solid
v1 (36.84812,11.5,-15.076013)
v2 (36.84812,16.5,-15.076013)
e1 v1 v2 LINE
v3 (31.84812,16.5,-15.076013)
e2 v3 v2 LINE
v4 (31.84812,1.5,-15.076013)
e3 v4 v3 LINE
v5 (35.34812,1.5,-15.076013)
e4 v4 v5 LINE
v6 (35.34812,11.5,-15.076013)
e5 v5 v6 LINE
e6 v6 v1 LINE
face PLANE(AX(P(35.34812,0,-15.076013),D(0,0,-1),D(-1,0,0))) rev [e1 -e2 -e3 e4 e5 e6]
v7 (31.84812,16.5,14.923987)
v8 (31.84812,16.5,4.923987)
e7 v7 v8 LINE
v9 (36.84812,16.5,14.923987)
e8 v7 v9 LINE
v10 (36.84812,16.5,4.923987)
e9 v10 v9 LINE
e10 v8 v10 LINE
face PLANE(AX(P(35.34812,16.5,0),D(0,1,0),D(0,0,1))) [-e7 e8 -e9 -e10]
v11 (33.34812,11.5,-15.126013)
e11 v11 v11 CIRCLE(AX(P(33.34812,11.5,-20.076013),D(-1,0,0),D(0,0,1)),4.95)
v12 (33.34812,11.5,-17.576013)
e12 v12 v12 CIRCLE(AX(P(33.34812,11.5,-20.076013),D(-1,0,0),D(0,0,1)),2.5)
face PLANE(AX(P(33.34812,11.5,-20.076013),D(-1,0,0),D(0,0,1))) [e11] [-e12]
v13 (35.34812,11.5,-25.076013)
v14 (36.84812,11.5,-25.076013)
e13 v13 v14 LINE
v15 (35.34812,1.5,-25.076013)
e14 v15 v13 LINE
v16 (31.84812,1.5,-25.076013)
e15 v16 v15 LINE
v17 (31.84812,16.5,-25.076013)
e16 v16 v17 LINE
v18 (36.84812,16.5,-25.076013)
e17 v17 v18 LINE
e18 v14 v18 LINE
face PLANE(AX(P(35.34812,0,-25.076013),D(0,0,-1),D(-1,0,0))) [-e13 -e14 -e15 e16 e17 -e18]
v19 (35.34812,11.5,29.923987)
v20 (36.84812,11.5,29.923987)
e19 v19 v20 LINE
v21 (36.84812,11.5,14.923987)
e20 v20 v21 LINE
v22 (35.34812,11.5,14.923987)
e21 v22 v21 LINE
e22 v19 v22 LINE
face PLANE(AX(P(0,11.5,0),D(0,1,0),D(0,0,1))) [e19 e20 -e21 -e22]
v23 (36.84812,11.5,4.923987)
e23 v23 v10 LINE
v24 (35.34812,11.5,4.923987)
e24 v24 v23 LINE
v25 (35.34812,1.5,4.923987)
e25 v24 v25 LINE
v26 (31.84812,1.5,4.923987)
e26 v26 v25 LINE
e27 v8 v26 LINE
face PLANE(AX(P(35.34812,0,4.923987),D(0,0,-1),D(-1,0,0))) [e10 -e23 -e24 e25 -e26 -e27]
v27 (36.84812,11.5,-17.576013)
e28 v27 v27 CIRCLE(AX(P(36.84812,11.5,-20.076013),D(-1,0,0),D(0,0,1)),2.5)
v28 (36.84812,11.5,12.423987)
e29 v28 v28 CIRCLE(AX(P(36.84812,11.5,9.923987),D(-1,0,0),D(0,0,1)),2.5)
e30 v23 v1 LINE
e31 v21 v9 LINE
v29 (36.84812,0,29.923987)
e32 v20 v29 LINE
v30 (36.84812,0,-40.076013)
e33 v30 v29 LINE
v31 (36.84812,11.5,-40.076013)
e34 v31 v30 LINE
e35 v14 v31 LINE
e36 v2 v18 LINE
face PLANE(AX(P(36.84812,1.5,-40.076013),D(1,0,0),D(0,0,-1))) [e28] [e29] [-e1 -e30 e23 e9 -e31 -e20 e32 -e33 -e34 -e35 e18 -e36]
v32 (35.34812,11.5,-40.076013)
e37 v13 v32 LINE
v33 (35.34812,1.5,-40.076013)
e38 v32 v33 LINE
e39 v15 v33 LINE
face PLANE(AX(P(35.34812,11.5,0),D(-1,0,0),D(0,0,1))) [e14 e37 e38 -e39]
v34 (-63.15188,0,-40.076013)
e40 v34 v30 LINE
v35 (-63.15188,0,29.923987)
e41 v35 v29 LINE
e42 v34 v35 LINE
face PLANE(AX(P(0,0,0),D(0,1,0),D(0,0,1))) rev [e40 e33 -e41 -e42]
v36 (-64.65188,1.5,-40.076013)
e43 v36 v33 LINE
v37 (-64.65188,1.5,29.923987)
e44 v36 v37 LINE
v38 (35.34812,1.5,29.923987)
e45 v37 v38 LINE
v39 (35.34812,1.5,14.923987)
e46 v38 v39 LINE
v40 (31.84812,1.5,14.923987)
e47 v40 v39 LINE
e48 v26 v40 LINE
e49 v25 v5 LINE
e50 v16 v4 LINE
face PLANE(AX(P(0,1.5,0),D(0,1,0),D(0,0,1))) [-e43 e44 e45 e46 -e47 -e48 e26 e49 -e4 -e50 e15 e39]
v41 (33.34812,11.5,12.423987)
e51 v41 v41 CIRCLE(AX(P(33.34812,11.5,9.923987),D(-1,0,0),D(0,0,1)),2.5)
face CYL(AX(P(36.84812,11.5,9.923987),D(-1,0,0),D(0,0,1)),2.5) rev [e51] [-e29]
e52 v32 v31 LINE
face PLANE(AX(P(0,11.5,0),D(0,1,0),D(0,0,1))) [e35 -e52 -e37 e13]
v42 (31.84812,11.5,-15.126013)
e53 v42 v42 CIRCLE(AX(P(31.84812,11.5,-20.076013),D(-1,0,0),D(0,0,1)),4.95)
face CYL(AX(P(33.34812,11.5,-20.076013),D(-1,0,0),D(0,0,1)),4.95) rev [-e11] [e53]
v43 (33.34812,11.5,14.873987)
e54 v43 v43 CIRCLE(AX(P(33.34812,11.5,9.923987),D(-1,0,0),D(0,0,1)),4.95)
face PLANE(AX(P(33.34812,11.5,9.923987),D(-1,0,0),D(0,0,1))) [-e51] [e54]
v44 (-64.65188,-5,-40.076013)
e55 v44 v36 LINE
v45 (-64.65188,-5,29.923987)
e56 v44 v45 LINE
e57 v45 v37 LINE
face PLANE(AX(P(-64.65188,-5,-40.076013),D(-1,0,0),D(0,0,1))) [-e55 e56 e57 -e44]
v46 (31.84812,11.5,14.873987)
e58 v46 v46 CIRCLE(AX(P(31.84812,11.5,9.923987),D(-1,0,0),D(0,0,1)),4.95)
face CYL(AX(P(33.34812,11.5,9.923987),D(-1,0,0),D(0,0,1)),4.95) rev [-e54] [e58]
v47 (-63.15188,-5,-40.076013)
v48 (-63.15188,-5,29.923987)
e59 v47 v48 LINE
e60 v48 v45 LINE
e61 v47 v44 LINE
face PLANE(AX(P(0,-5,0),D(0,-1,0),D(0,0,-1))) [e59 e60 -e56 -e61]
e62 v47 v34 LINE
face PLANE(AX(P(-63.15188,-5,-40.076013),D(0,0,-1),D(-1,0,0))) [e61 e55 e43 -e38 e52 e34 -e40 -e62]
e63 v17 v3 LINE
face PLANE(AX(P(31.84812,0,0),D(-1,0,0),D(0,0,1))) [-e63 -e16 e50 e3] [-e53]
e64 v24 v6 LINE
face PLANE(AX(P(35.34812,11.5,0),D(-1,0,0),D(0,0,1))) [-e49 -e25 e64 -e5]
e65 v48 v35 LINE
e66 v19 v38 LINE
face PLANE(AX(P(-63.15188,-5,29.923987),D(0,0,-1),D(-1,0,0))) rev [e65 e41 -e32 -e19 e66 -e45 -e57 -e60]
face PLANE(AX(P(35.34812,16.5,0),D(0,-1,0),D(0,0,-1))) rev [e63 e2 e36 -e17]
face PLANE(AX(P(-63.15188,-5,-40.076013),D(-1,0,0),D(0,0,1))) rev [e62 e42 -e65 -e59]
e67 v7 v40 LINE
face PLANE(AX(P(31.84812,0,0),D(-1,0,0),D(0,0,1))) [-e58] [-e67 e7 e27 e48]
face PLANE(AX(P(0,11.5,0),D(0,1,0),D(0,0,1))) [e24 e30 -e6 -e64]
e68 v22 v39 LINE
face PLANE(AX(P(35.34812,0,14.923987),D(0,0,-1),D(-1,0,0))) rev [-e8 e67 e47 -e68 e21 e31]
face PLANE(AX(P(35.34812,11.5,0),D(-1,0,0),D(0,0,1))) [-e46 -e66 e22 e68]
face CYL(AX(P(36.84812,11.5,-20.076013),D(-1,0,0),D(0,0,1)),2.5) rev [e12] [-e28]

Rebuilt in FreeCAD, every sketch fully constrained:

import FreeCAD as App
import Part
import Sketcher

V = App.Vector

doc = App.newDocument("Part")
body = doc.addObject("PartDesign::Body", "Body")

# Sketch on XZ plane
sketch1 = body.newObject("Sketcher::SketchObject", "Sketch")
sketch1.AttachmentSupport = (doc.getObject("XZ_Plane"), [""])
sketch1.MapMode = "FlatFace"
sketch1.addGeometry(Part.LineSegment(V(-64.7, -40.1, 0), V(-64.7, 29.9, 0)), False)
sketch1.addGeometry(Part.LineSegment(V(-64.7, 29.9, 0), V(-63.2, 29.9, 0)), False)
sketch1.addGeometry(Part.LineSegment(V(-63.2, 29.9, 0), V(-63.2, -40.1, 0)), False)
sketch1.addGeometry(Part.LineSegment(V(-63.2, -40.1, 0), V(-64.7, -40.1, 0)), False)
sketch1.addConstraint(Sketcher.Constraint("Coincident", 0, 2, 1, 1))
sketch1.addConstraint(Sketcher.Constraint("Coincident", 1, 2, 2, 1))
sketch1.addConstraint(Sketcher.Constraint("Coincident", 2, 2, 3, 1))
sketch1.addConstraint(Sketcher.Constraint("Coincident", 3, 2, 0, 1))
sketch1.addConstraint(Sketcher.Constraint("Vertical", 0))
sketch1.addConstraint(Sketcher.Constraint("Horizontal", 1))
sketch1.addConstraint(Sketcher.Constraint("Vertical", 2))
sketch1.addConstraint(Sketcher.Constraint("Horizontal", 3))
sketch1.addConstraint(Sketcher.Constraint("DistanceY", 0, 1, 0, 2, 70.0))
sketch1.addConstraint(Sketcher.Constraint("DistanceX", 1, 1, 1, 2, 1.5))
sketch1.addConstraint(Sketcher.Constraint("DistanceX", 0, 2, -1, 1, 64.65188))
sketch1.addConstraint(Sketcher.Constraint("DistanceY", -1, 1, 0, 2, 29.923987))
pad1 = body.newObject("PartDesign::Pad", "Pad")
pad1.Profile = sketch1
pad1.Length = 5

# Sketch on XZ plane
sketch2 = body.newObject("Sketcher::SketchObject", "Sketch001")
sketch2.AttachmentSupport = (doc.getObject("XZ_Plane"), [""])
sketch2.MapMode = "FlatFace"
sketch2.addGeometry(Part.LineSegment(V(-65, -40, 0), V(-65, 30, 0)), False)
sketch2.addGeometry(Part.LineSegment(V(-65, 30, 0), V(37, 30, 0)), False)
sketch2.addGeometry(Part.LineSegment(V(37, 30, 0), V(37, -40, 0)), False)
sketch2.addGeometry(Part.LineSegment(V(37, -40, 0), V(-65, -40, 0)), False)
sketch2.addConstraint(Sketcher.Constraint("Coincident", 0, 2, 1, 1))
sketch2.addConstraint(Sketcher.Constraint("Coincident", 1, 2, 2, 1))
sketch2.addConstraint(Sketcher.Constraint("Coincident", 2, 2, 3, 1))
sketch2.addConstraint(Sketcher.Constraint("Coincident", 3, 2, 0, 1))
sketch2.addConstraint(Sketcher.Constraint("Vertical", 0))
sketch2.addConstraint(Sketcher.Constraint("Horizontal", 1))
sketch2.addConstraint(Sketcher.Constraint("Vertical", 2))
sketch2.addConstraint(Sketcher.Constraint("Horizontal", 3))
sketch2.addConstraint(Sketcher.Constraint("DistanceY", 0, 1, 0, 2, 70.0))
sketch2.addConstraint(Sketcher.Constraint("DistanceX", 1, 1, 1, 2, 101.5))
sketch2.addConstraint(Sketcher.Constraint("DistanceX", 0, 2, -1, 1, 64.65188))
sketch2.addConstraint(Sketcher.Constraint("DistanceY", -1, 1, 0, 2, 29.923987))
pad2 = body.newObject("PartDesign::Pad", "Pad001")
pad2.Profile = sketch2
pad2.Length = 1.5
pad2.Reversed = True

# Sketch on XZ plane
sketch3 = body.newObject("Sketcher::SketchObject", "Sketch002")
sketch3.AttachmentSupport = (doc.getObject("XZ_Plane"), [""])
sketch3.MapMode = "FlatFace"
sketch3.AttachmentOffset = App.Placement(V(0, 0, -1.5), App.Rotation())
sketch3.addGeometry(Part.LineSegment(V(35.3, -40.1, 0), V(35.3, 29.9, 0)), False)
sketch3.addGeometry(Part.LineSegment(V(35.3, 29.9, 0), V(36.8, 29.9, 0)), False)
sketch3.addGeometry(Part.LineSegment(V(36.8, 29.9, 0), V(36.8, -40.1, 0)), False)
sketch3.addGeometry(Part.LineSegment(V(36.8, -40.1, 0), V(35.3, -40.1, 0)), False)
sketch3.addConstraint(Sketcher.Constraint("Coincident", 0, 2, 1, 1))
sketch3.addConstraint(Sketcher.Constraint("Coincident", 1, 2, 2, 1))
sketch3.addConstraint(Sketcher.Constraint("Coincident", 2, 2, 3, 1))
sketch3.addConstraint(Sketcher.Constraint("Coincident", 3, 2, 0, 1))
sketch3.addConstraint(Sketcher.Constraint("Vertical", 0))
sketch3.addConstraint(Sketcher.Constraint("Horizontal", 1))
sketch3.addConstraint(Sketcher.Constraint("Vertical", 2))
sketch3.addConstraint(Sketcher.Constraint("Horizontal", 3))
sketch3.addConstraint(Sketcher.Constraint("DistanceY", 0, 1, 0, 2, 70.0))
sketch3.addConstraint(Sketcher.Constraint("DistanceX", 1, 1, 1, 2, 1.5))
sketch3.addConstraint(Sketcher.Constraint("DistanceX", -1, 1, 0, 2, 35.34812))
sketch3.addConstraint(Sketcher.Constraint("DistanceY", -1, 1, 0, 2, 29.923987))
pad3 = body.newObject("PartDesign::Pad", "Pad002")
pad3.Profile = sketch3
pad3.Length = 10
pad3.Reversed = True

# Sketch on YZ plane
sketch4 = body.newObject("Sketcher::SketchObject", "Sketch003")
sketch4.AttachmentSupport = (doc.getObject("YZ_Plane"), [""])
sketch4.MapMode = "FlatFace"
sketch4.AttachmentOffset = App.Placement(V(0, 0, 36.84812), App.Rotation())
sketch4.addGeometry(Part.LineSegment(V(16, 15, 0), V(12, 15, 0)), False)
sketch4.addGeometry(Part.LineSegment(V(12, 15, 0), V(12, 5, 0)), False)
sketch4.addGeometry(Part.LineSegment(V(12, 5, 0), V(16, 5, 0)), False)
sketch4.addGeometry(Part.LineSegment(V(16, 5, 0), V(16, 15, 0)), False)
sketch4.addGeometry(Part.LineSegment(V(16, -15, 0), V(12, -15, 0)), False)
sketch4.addGeometry(Part.LineSegment(V(12, -15, 0), V(12, -25, 0)), False)
sketch4.addGeometry(Part.LineSegment(V(12, -25, 0), V(16, -25, 0)), False)
sketch4.addGeometry(Part.LineSegment(V(16, -25, 0), V(16, -15, 0)), False)
sketch4.addConstraint(Sketcher.Constraint("Coincident", 0, 2, 1, 1))
sketch4.addConstraint(Sketcher.Constraint("Coincident", 1, 2, 2, 1))
sketch4.addConstraint(Sketcher.Constraint("Coincident", 2, 2, 3, 1))
sketch4.addConstraint(Sketcher.Constraint("Coincident", 3, 2, 0, 1))
sketch4.addConstraint(Sketcher.Constraint("Coincident", 4, 2, 5, 1))
sketch4.addConstraint(Sketcher.Constraint("Coincident", 5, 2, 6, 1))
sketch4.addConstraint(Sketcher.Constraint("Coincident", 6, 2, 7, 1))
sketch4.addConstraint(Sketcher.Constraint("Coincident", 7, 2, 4, 1))
sketch4.addConstraint(Sketcher.Constraint("Horizontal", 0))
sketch4.addConstraint(Sketcher.Constraint("Vertical", 1))
sketch4.addConstraint(Sketcher.Constraint("Horizontal", 2))
sketch4.addConstraint(Sketcher.Constraint("Vertical", 3))
sketch4.addConstraint(Sketcher.Constraint("Horizontal", 4))
sketch4.addConstraint(Sketcher.Constraint("Vertical", 5))
sketch4.addConstraint(Sketcher.Constraint("Horizontal", 6))
sketch4.addConstraint(Sketcher.Constraint("Vertical", 7))
sketch4.addConstraint(Sketcher.Constraint("Vertical", 1, 2, 4, 2))
sketch4.addConstraint(Sketcher.Constraint("Vertical", 3, 2, 6, 2))
sketch4.addConstraint(Sketcher.Constraint("Equal", 3, 5))
sketch4.addConstraint(Sketcher.Constraint("DistanceX", 0, 2, 0, 1, 5.0))
sketch4.addConstraint(Sketcher.Constraint("DistanceY", 1, 2, 1, 1, 10.0))
sketch4.addConstraint(Sketcher.Constraint("DistanceY", 4, 2, 1, 2, 20.0))
sketch4.addConstraint(Sketcher.Constraint("DistanceX", -1, 1, 0, 2, 11.5))
sketch4.addConstraint(Sketcher.Constraint("DistanceY", -1, 1, 0, 2, 14.923987))
pad4 = body.newObject("PartDesign::Pad", "Pad003")
pad4.Profile = sketch4
pad4.Length = 1.5
pad4.Reversed = True

# Sketch on YZ plane
sketch5 = body.newObject("Sketcher::SketchObject", "Sketch004")
sketch5.AttachmentSupport = (doc.getObject("YZ_Plane"), [""])
sketch5.MapMode = "FlatFace"
sketch5.AttachmentOffset = App.Placement(V(0, 0, 35.34812), App.Rotation())
sketch5.addGeometry(Part.LineSegment(V(16, 15, 0), V(2, 15, 0)), False)
sketch5.addGeometry(Part.LineSegment(V(2, 15, 0), V(2, 5, 0)), False)
sketch5.addGeometry(Part.LineSegment(V(2, 5, 0), V(16, 5, 0)), False)
sketch5.addGeometry(Part.LineSegment(V(16, 5, 0), V(16, 15, 0)), False)
sketch5.addGeometry(Part.LineSegment(V(16, -25, 0), V(16, -15, 0)), False)
sketch5.addGeometry(Part.LineSegment(V(16, -15, 0), V(2, -15, 0)), False)
sketch5.addGeometry(Part.LineSegment(V(2, -15, 0), V(2, -25, 0)), False)
sketch5.addGeometry(Part.LineSegment(V(2, -25, 0), V(16, -25, 0)), False)
sketch5.addConstraint(Sketcher.Constraint("Coincident", 0, 2, 1, 1))
sketch5.addConstraint(Sketcher.Constraint("Coincident", 1, 2, 2, 1))
sketch5.addConstraint(Sketcher.Constraint("Coincident", 2, 2, 3, 1))
sketch5.addConstraint(Sketcher.Constraint("Coincident", 3, 2, 0, 1))
sketch5.addConstraint(Sketcher.Constraint("Coincident", 4, 2, 5, 1))
sketch5.addConstraint(Sketcher.Constraint("Coincident", 5, 2, 6, 1))
sketch5.addConstraint(Sketcher.Constraint("Coincident", 6, 2, 7, 1))
sketch5.addConstraint(Sketcher.Constraint("Coincident", 7, 2, 4, 1))
sketch5.addConstraint(Sketcher.Constraint("Horizontal", 0))
sketch5.addConstraint(Sketcher.Constraint("Vertical", 1))
sketch5.addConstraint(Sketcher.Constraint("Horizontal", 2))
sketch5.addConstraint(Sketcher.Constraint("Vertical", 3))
sketch5.addConstraint(Sketcher.Constraint("Vertical", 4))
sketch5.addConstraint(Sketcher.Constraint("Horizontal", 5))
sketch5.addConstraint(Sketcher.Constraint("Vertical", 6))
sketch5.addConstraint(Sketcher.Constraint("Horizontal", 7))
sketch5.addConstraint(Sketcher.Constraint("Vertical", 3, 2, 4, 2))
sketch5.addConstraint(Sketcher.Constraint("Vertical", 1, 2, 5, 2))
sketch5.addConstraint(Sketcher.Constraint("Equal", 3, 4))
sketch5.addConstraint(Sketcher.Constraint("DistanceX", 0, 2, 0, 1, 15.0))
sketch5.addConstraint(Sketcher.Constraint("DistanceY", 1, 2, 1, 1, 10.0))
sketch5.addConstraint(Sketcher.Constraint("DistanceY", 4, 2, 2, 2, 20.0))
sketch5.addConstraint(Sketcher.Constraint("DistanceX", -1, 1, 0, 2, 1.5))
sketch5.addConstraint(Sketcher.Constraint("DistanceY", -1, 1, 0, 2, 14.923987))
pad5 = body.newObject("PartDesign::Pad", "Pad004")
pad5.Profile = sketch5
pad5.Length = 3.5
pad5.Reversed = True

# Sketch on YZ plane
sketch6 = body.newObject("Sketcher::SketchObject", "Sketch005")
sketch6.AttachmentSupport = (doc.getObject("YZ_Plane"), [""])
sketch6.MapMode = "FlatFace"
sketch6.AttachmentOffset = App.Placement(V(0, 0, 31.84812), App.Rotation())
sketch6.addGeometry(Part.Circle(V(11.5, -20.1, 0), V(0, 0, 1), 5), False)
sketch6.addGeometry(Part.Circle(V(11.5, -20.1, 0), V(0, 0, 1), 2.5), False)
sketch6.addGeometry(Part.Circle(V(11.5, 9.9, 0), V(0, 0, 1), 5), False)
sketch6.addGeometry(Part.Circle(V(11.5, 9.9, 0), V(0, 0, 1), 2.5), False)
sketch6.addConstraint(Sketcher.Constraint("Coincident", 1, 3, 0, 3))
sketch6.addConstraint(Sketcher.Constraint("Coincident", 3, 3, 2, 3))
sketch6.addConstraint(Sketcher.Constraint("Equal", 0, 2))
sketch6.addConstraint(Sketcher.Constraint("Equal", 1, 3))
sketch6.addConstraint(Sketcher.Constraint("Vertical", 1, 3, 2, 3))
sketch6.addConstraint(Sketcher.Constraint("Diameter", 1, 5.0))
sketch6.addConstraint(Sketcher.Constraint("Diameter", 0, 9.9))
sketch6.addConstraint(Sketcher.Constraint("DistanceY", 0, 3, 2, 3, 30.0))
sketch6.addConstraint(Sketcher.Constraint("DistanceX", -1, 1, 0, 3, 11.5))
sketch6.addConstraint(Sketcher.Constraint("DistanceY", 0, 3, -1, 1, 20.076013))
pocket1 = body.newObject("PartDesign::Pocket", "Pocket")
pocket1.Profile = sketch6
pocket1.Length = 1.5
pocket1.Reversed = True

# Sketch on YZ plane
sketch7 = body.newObject("Sketcher::SketchObject", "Sketch006")
sketch7.AttachmentSupport = (doc.getObject("YZ_Plane"), [""])
sketch7.MapMode = "FlatFace"
sketch7.AttachmentOffset = App.Placement(V(0, 0, 31.84812), App.Rotation())
sketch7.addGeometry(Part.Circle(V(11.5, -20.1, 0), V(0, 0, 1), 2.5), False)
sketch7.addGeometry(Part.Circle(V(11.5, 9.9, 0), V(0, 0, 1), 2.5), False)
sketch7.addConstraint(Sketcher.Constraint("Equal", 0, 1))
sketch7.addConstraint(Sketcher.Constraint("Vertical", 0, 3, 1, 3))
sketch7.addConstraint(Sketcher.Constraint("Diameter", 0, 5.0))
sketch7.addConstraint(Sketcher.Constraint("DistanceY", 0, 3, 1, 3, 30.0))
sketch7.addConstraint(Sketcher.Constraint("DistanceX", -1, 1, 0, 3, 11.5))
sketch7.addConstraint(Sketcher.Constraint("DistanceY", 0, 3, -1, 1, 20.076013))
pocket2 = body.newObject("PartDesign::Pocket", "Pocket001")
pocket2.Profile = sketch7
pocket2.Type = "ThroughAll"
pocket2.Reversed = True

doc.recompute()
